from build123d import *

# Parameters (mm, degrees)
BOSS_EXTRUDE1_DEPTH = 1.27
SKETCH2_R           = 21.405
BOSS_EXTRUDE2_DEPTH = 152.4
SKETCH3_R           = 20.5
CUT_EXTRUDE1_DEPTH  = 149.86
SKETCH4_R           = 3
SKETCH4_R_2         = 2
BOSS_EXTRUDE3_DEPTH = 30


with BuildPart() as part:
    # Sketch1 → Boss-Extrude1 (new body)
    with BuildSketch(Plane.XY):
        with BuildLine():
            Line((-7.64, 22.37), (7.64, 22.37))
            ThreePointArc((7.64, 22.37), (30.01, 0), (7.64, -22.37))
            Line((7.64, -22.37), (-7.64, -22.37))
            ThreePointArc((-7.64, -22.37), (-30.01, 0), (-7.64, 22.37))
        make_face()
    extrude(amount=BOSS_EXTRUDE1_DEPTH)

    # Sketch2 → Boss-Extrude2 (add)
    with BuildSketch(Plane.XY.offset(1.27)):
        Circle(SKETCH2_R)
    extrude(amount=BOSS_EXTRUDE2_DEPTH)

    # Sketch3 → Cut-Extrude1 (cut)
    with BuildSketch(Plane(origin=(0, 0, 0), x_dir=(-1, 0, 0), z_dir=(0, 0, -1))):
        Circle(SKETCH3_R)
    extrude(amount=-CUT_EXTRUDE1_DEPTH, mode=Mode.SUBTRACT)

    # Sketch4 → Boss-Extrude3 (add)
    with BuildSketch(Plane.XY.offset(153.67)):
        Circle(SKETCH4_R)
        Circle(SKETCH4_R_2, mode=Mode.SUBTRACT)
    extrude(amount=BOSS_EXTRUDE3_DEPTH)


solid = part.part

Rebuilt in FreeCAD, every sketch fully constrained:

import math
import FreeCAD as App
import Part
import Sketcher

V = App.Vector
Q = App.Units.Quantity

doc = App.newDocument("Part")
params = doc.addObject("Spreadsheet::Sheet", "Params")
for row, (alias, value) in enumerate([
    ("sketch1_radius", "22.37 mm"),
    ("sketch1_width", "15.28 mm"),
    ("pad1_length", "1.27 mm"),
    ("sketch2_diameter", "42.81 mm"),
    ("pad2_length", "152.4 mm"),
    ("sketch3_diameter", "41 mm"),
    ("pocket1_length", "149.86 mm"),
    ("sketch4_diameter", "6 mm"),
    ("sketch4_diameter2", "4 mm"),
    ("pad3_length", "30 mm"),
], start=1):
    params.set(f"A{row}", alias)
    params.set(f"B{row}", "=" + value)
    params.setAlias(f"B{row}", alias)

body = doc.addObject("PartDesign::Body", "Body")

# Sketch on XY plane
sketch1 = body.newObject("Sketcher::SketchObject", "Sketch")
sketch1.AttachmentSupport = (doc.getObject("XY_Plane"), [""])
sketch1.MapMode = "FlatFace"
sketch1.addGeometry([
    Part.LineSegment(V(8, 22, 0), V(-8, 22, 0)),
    Part.ArcOfCircle(Part.Circle(V(-8, 0, 0), V(0, 0, 1), 22), math.radians(90), math.radians(270)),
    Part.LineSegment(V(-8, -22, 0), V(8, -22, 0)),
    Part.ArcOfCircle(Part.Circle(V(8, 0, 0), V(0, 0, 1), 22), math.radians(-90), math.radians(90)),
], False)
sketch1.addConstraint([
    Sketcher.Constraint("Tangent", 0, 2, 1, 1),
    Sketcher.Constraint("Tangent", 1, 2, 2, 1),
    Sketcher.Constraint("Tangent", 2, 2, 3, 1),
    Sketcher.Constraint("Tangent", 3, 2, 0, 1),
    Sketcher.Constraint("Horizontal", 0),
    Sketcher.Constraint("Horizontal", 2),
    Sketcher.Constraint("Symmetric", 1, 3, 3, 3, -1, 1),
    Sketcher.Constraint("Radius", 1, Q("22.37 mm")),
    Sketcher.Constraint("DistanceX", 0, 2, 0, 1, Q("15.28 mm")),
])
sketch1.setExpression("Constraints[7]", "Params.sketch1_radius")
sketch1.setExpression("Constraints[8]", "Params.sketch1_width")
pad1 = body.newObject("PartDesign::Pad", "Pad")
pad1.Profile = sketch1
pad1.setExpression("Length", "Params.pad1_length")

# Sketch on XY plane
sketch2 = body.newObject("Sketcher::SketchObject", "Sketch001")
sketch2.AttachmentSupport = (doc.getObject("XY_Plane"), [""])
sketch2.MapMode = "FlatFace"
sketch2.AttachmentOffset = App.Placement(V(0, 0, 1.27), App.Rotation())
sketch2.addGeometry(Part.Circle(V(0, 0, 0), V(0, 0, 1), 21), False)
sketch2.addConstraint([
    Sketcher.Constraint("Coincident", 0, 3, -1, 1),
    Sketcher.Constraint("Diameter", 0, Q("42.81 mm")),
])
sketch2.setExpression("Constraints[1]", "Params.sketch2_diameter")
pad2 = body.newObject("PartDesign::Pad", "Pad001")
pad2.Profile = sketch2
pad2.setExpression("Length", "Params.pad2_length")

# Sketch on XY plane
sketch3 = body.newObject("Sketcher::SketchObject", "Sketch002")
sketch3.AttachmentSupport = (doc.getObject("XY_Plane"), [""])
sketch3.MapMode = "FlatFace"
sketch3.addGeometry(Part.Circle(V(0, 0, 0), V(0, 0, 1), 20), False)
sketch3.addConstraint([
    Sketcher.Constraint("Coincident", 0, 3, -1, 1),
    Sketcher.Constraint("Diameter", 0, Q("41 mm")),
])
sketch3.setExpression("Constraints[1]", "Params.sketch3_diameter")
pocket1 = body.newObject("PartDesign::Pocket", "Pocket")
pocket1.Profile = sketch3
pocket1.setExpression("Length", "Params.pocket1_length")
pocket1.Reversed = True

# Sketch on XY plane
sketch4 = body.newObject("Sketcher::SketchObject", "Sketch003")
sketch4.AttachmentSupport = (doc.getObject("XY_Plane"), [""])
sketch4.MapMode = "FlatFace"
sketch4.AttachmentOffset = App.Placement(V(0, 0, 153.67), App.Rotation())
sketch4.addGeometry([
    Part.Circle(V(0, 0, 0), V(0, 0, 1), 3),
    Part.Circle(V(0, 0, 0), V(0, 0, 1), 2),
], False)
sketch4.addConstraint([
    Sketcher.Constraint("Coincident", 0, 3, -1, 1),
    Sketcher.Constraint("Coincident", 1, 3, -1, 1),
    Sketcher.Constraint("Diameter", 0, Q("6 mm")),
    Sketcher.Constraint("Diameter", 1, Q("4 mm")),
])
sketch4.setExpression("Constraints[2]", "Params.sketch4_diameter")
sketch4.setExpression("Constraints[3]", "Params.sketch4_diameter2")
pad3 = body.newObject("PartDesign::Pad", "Pad002")
pad3.Profile = sketch4
pad3.setExpression("Length", "Params.pad3_length")

doc.recompute()
